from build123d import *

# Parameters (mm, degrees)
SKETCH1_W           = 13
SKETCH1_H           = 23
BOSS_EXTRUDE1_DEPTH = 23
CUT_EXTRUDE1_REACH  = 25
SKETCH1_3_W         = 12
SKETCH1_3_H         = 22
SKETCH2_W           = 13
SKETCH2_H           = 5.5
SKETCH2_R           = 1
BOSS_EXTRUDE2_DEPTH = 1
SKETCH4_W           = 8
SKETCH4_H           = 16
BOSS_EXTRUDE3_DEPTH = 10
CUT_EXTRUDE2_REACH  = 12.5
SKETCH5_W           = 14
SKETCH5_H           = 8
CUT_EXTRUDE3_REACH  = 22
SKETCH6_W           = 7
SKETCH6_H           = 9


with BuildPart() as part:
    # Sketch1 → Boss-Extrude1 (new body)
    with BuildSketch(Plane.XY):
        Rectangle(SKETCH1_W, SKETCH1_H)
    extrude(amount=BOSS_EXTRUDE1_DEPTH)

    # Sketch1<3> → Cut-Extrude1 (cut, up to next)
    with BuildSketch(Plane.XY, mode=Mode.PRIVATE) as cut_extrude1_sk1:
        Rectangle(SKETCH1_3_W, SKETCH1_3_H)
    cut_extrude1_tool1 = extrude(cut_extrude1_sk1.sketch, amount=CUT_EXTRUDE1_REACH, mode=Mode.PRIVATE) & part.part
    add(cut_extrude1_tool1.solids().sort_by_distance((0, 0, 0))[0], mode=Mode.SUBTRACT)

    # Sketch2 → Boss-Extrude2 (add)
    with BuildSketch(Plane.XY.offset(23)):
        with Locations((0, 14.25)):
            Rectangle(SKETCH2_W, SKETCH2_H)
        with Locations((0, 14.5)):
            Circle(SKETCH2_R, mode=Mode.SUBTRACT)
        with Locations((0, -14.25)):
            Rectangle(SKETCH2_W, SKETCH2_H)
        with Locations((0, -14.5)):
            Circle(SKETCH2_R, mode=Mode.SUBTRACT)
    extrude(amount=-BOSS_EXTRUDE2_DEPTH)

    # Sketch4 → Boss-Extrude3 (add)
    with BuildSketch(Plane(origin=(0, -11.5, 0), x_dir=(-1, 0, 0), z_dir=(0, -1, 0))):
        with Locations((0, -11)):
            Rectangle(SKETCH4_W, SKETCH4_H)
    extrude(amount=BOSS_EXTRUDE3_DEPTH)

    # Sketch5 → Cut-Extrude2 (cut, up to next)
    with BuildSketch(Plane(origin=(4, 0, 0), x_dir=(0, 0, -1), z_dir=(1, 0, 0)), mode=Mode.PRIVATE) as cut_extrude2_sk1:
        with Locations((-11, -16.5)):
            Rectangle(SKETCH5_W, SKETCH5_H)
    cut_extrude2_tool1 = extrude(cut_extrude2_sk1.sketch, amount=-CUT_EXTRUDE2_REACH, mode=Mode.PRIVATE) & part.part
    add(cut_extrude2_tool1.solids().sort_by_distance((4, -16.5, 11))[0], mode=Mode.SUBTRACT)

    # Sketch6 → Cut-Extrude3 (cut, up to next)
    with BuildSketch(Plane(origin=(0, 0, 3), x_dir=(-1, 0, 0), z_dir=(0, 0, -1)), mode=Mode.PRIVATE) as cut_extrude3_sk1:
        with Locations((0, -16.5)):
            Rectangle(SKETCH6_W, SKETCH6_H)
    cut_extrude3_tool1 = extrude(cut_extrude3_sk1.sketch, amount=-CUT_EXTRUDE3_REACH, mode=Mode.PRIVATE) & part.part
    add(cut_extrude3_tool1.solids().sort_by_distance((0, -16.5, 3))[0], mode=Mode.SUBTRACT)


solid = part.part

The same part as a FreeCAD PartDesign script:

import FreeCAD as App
import Part
import Sketcher
from FreeCAD import Vector
Q = App.Units.Quantity

doc = App.newDocument("Part")
body = doc.addObject("PartDesign::Body", "Body")

# Sketch on XY plane
sketch1 = body.newObject("Sketcher::SketchObject", "Sketch")
sketch1.AttachmentSupport = (doc.getObject("XY_Plane"), [""])
sketch1.MapMode = "FlatFace"
sketch1.addGeometry(Part.LineSegment(Vector(-6.5, 11.5, 0), Vector(-6.5, -11.5, 0)), False)
sketch1.addGeometry(Part.LineSegment(Vector(-6.5, -11.5, 0), Vector(6.5, -11.5, 0)), False)
sketch1.addGeometry(Part.LineSegment(Vector(6.5, -11.5, 0), Vector(6.5, 11.5, 0)), False)
sketch1.addGeometry(Part.LineSegment(Vector(6.5, 11.5, 0), Vector(-6.5, 11.5, 0)), False)
sketch1.addConstraint(Sketcher.Constraint("Coincident", 0, 2, 1, 1))
sketch1.addConstraint(Sketcher.Constraint("Coincident", 1, 2, 2, 1))
sketch1.addConstraint(Sketcher.Constraint("Coincident", 2, 2, 3, 1))
sketch1.addConstraint(Sketcher.Constraint("Coincident", 3, 2, 0, 1))
sketch1.addConstraint(Sketcher.Constraint("Vertical", 0))
sketch1.addConstraint(Sketcher.Constraint("Horizontal", 1))
sketch1.addConstraint(Sketcher.Constraint("Vertical", 2))
sketch1.addConstraint(Sketcher.Constraint("Horizontal", 3))
sketch1.addConstraint(Sketcher.Constraint("Symmetric", 0, 2, 2, 2, -1, 1))
sketch1.addConstraint(Sketcher.Constraint("DistanceX", 1, 1, 1, 2, Q("13 mm")))
sketch1.addConstraint(Sketcher.Constraint("DistanceY", 0, 2, 0, 1, Q("23 mm")))
pad1 = body.newObject("PartDesign::Pad", "Pad")
pad1.Profile = sketch1
pad1.Length = 23

# Sketch on XY plane
sketch2 = body.newObject("Sketcher::SketchObject", "Sketch001")
sketch2.AttachmentSupport = (doc.getObject("XY_Plane"), [""])
sketch2.MapMode = "FlatFace"
sketch2.addGeometry(Part.LineSegment(Vector(-6, 11, 0), Vector(-6, -11, 0)), False)
sketch2.addGeometry(Part.LineSegment(Vector(-6, -11, 0), Vector(6, -11, 0)), False)
sketch2.addGeometry(Part.LineSegment(Vector(6, -11, 0), Vector(6, 11, 0)), False)
sketch2.addGeometry(Part.LineSegment(Vector(6, 11, 0), Vector(-6, 11, 0)), False)
sketch2.addConstraint(Sketcher.Constraint("Coincident", 0, 2, 1, 1))
sketch2.addConstraint(Sketcher.Constraint("Coincident", 1, 2, 2, 1))
sketch2.addConstraint(Sketcher.Constraint("Coincident", 2, 2, 3, 1))
sketch2.addConstraint(Sketcher.Constraint("Coincident", 3, 2, 0, 1))
sketch2.addConstraint(Sketcher.Constraint("Vertical", 0))
sketch2.addConstraint(Sketcher.Constraint("Horizontal", 1))
sketch2.addConstraint(Sketcher.Constraint("Vertical", 2))
sketch2.addConstraint(Sketcher.Constraint("Horizontal", 3))
sketch2.addConstraint(Sketcher.Constraint("Symmetric", 0, 2, 2, 2, -1, 1))
sketch2.addConstraint(Sketcher.Constraint("DistanceX", 1, 1, 1, 2, Q("12 mm")))
sketch2.addConstraint(Sketcher.Constraint("DistanceY", 0, 2, 0, 1, Q("22 mm")))
pocket1 = body.newObject("PartDesign::Pocket", "Pocket")
pocket1.Profile = sketch2
pocket1.Type = "UpToFirst"
pocket1.Reversed = True

# Sketch on XY plane
sketch3 = body.newObject("Sketcher::SketchObject", "Sketch002")
sketch3.AttachmentSupport = (doc.getObject("XY_Plane"), [""])
sketch3.MapMode = "FlatFace"
sketch3.AttachmentOffset = App.Placement(Vector(0, 0, 23), App.Rotation())
sketch3.addGeometry(Part.LineSegment(Vector(-6.5, 17, 0), Vector(-6.5, 11.5, 0)), False)
sketch3.addGeometry(Part.LineSegment(Vector(-6.5, 11.5, 0), Vector(6.5, 11.5, 0)), False)
sketch3.addGeometry(Part.LineSegment(Vector(6.5, 11.5, 0), Vector(6.5, 17, 0)), False)
sketch3.addGeometry(Part.LineSegment(Vector(6.5, 17, 0), Vector(-6.5, 17, 0)), False)
sketch3.addGeometry(Part.Circle(Vector(0, 14.5, 0), Vector(0, 0, 1), 1), False)
sketch3.addGeometry(Part.LineSegment(Vector(-6.5, -11.5, 0), Vector(-6.5, -17, 0)), False)
sketch3.addGeometry(Part.LineSegment(Vector(-6.5, -17, 0), Vector(6.5, -17, 0)), False)
sketch3.addGeometry(Part.LineSegment(Vector(6.5, -17, 0), Vector(6.5, -11.5, 0)), False)
sketch3.addGeometry(Part.LineSegment(Vector(6.5, -11.5, 0), Vector(-6.5, -11.5, 0)), False)
sketch3.addGeometry(Part.Circle(Vector(0, -14.5, 0), Vector(0, 0, 1), 1), False)
sketch3.addConstraint(Sketcher.Constraint("Coincident", 0, 2, 1, 1))
sketch3.addConstraint(Sketcher.Constraint("Coincident", 1, 2, 2, 1))
sketch3.addConstraint(Sketcher.Constraint("Coincident", 2, 2, 3, 1))
sketch3.addConstraint(Sketcher.Constraint("Coincident", 3, 2, 0, 1))
sketch3.addConstraint(Sketcher.Constraint("Coincident", 5, 2, 6, 1))
sketch3.addConstraint(Sketcher.Constraint("Coincident", 6, 2, 7, 1))
sketch3.addConstraint(Sketcher.Constraint("Coincident", 7, 2, 8, 1))
sketch3.addConstraint(Sketcher.Constraint("Coincident", 8, 2, 5, 1))
sketch3.addConstraint(Sketcher.Constraint("Vertical", 0))
sketch3.addConstraint(Sketcher.Constraint("Horizontal", 1))
sketch3.addConstraint(Sketcher.Constraint("Vertical", 2))
sketch3.addConstraint(Sketcher.Constraint("Horizontal", 3))
sketch3.addConstraint(Sketcher.Constraint("Vertical", 5))
sketch3.addConstraint(Sketcher.Constraint("Horizontal", 6))
sketch3.addConstraint(Sketcher.Constraint("Vertical", 7))
sketch3.addConstraint(Sketcher.Constraint("Horizontal", 8))
sketch3.addConstraint(Sketcher.Constraint("Equal", 4, 9))
sketch3.addConstraint(Sketcher.Constraint("Symmetric", 4, 3, 9, 3, -1, 1))
sketch3.addConstraint(Sketcher.Constraint("Symmetric", 2, 2, 5, 2, -1, 1))
sketch3.addConstraint(Sketcher.Constraint("Symmetric", 0, 2, 7, 2, -1, 1))
sketch3.addConstraint(Sketcher.Constraint("PointOnObject", 4, 3, -2))
sketch3.addConstraint(Sketcher.Constraint("Vertical", 3, 2, 5, 2))
sketch3.addConstraint(Sketcher.Constraint("Diameter", 4, Q("2 mm")))
sketch3.addConstraint(Sketcher.Constraint("DistanceX", 1, 1, 1, 2, Q("13 mm")))
sketch3.addConstraint(Sketcher.Constraint("DistanceY", 0, 2, 0, 1, Q("5.5 mm")))
sketch3.addConstraint(Sketcher.Constraint("DistanceY", -1, 1, 2, 2, Q("17 mm")))
sketch3.addConstraint(Sketcher.Constraint("DistanceY", 9, 3, 4, 3, Q("29 mm")))
pad2 = body.newObject("PartDesign::Pad", "Pad001")
pad2.Profile = sketch3
pad2.Length = 1
pad2.Reversed = True

# Sketch on XZ plane
sketch4 = body.newObject("Sketcher::SketchObject", "Sketch003")
sketch4.AttachmentSupport = (doc.getObject("XZ_Plane"), [""])
sketch4.MapMode = "FlatFace"
sketch4.AttachmentOffset = App.Placement(Vector(0, 0, 11.5), App.Rotation())
sketch4.addGeometry(Part.LineSegment(Vector(4, 3, 0), Vector(4, 19, 0)), False)
sketch4.addGeometry(Part.LineSegment(Vector(4, 19, 0), Vector(-4, 19, 0)), False)
sketch4.addGeometry(Part.LineSegment(Vector(-4, 19, 0), Vector(-4, 3, 0)), False)
sketch4.addGeometry(Part.LineSegment(Vector(-4, 3, 0), Vector(4, 3, 0)), False)
sketch4.addConstraint(Sketcher.Constraint("Coincident", 0, 2, 1, 1))
sketch4.addConstraint(Sketcher.Constraint("Coincident", 1, 2, 2, 1))
sketch4.addConstraint(Sketcher.Constraint("Coincident", 2, 2, 3, 1))
sketch4.addConstraint(Sketcher.Constraint("Coincident", 3, 2, 0, 1))
sketch4.addConstraint(Sketcher.Constraint("Vertical", 0))
sketch4.addConstraint(Sketcher.Constraint("Horizontal", 1))
sketch4.addConstraint(Sketcher.Constraint("Vertical", 2))
sketch4.addConstraint(Sketcher.Constraint("Horizontal", 3))
sketch4.addConstraint(Sketcher.Constraint("DistanceX", 1, 2, 1, 1, Q("8 mm")))
sketch4.addConstraint(Sketcher.Constraint("DistanceY", 0, 1, 0, 2, Q("16 mm")))
sketch4.addConstraint(Sketcher.Constraint("DistanceX", -1, 1, 0, 2, Q("4 mm")))
sketch4.addConstraint(Sketcher.Constraint("DistanceY", -1, 1, 0, 2, Q("19 mm")))
pad3 = body.newObject("PartDesign::Pad", "Pad002")
pad3.Profile = sketch4
pad3.Length = 10

# Sketch on YZ plane
sketch5 = body.newObject("Sketcher::SketchObject", "Sketch004")
sketch5.AttachmentSupport = (doc.getObject("YZ_Plane"), [""])
sketch5.MapMode = "FlatFace"
sketch5.AttachmentOffset = App.Placement(Vector(0, 0, 4), App.Rotation())
sketch5.addGeometry(Part.LineSegment(Vector(-12.5, 18, 0), Vector(-20.5, 18, 0)), False)
sketch5.addGeometry(Part.LineSegment(Vector(-20.5, 18, 0), Vector(-20.5, 4, 0)), False)
sketch5.addGeometry(Part.LineSegment(Vector(-20.5, 4, 0), Vector(-12.5, 4, 0)), False)
sketch5.addGeometry(Part.LineSegment(Vector(-12.5, 4, 0), Vector(-12.5, 18, 0)), False)
sketch5.addConstraint(Sketcher.Constraint("Coincident", 0, 2, 1, 1))
sketch5.addConstraint(Sketcher.Constraint("Coincident", 1, 2, 2, 1))
sketch5.addConstraint(Sketcher.Constraint("Coincident", 2, 2, 3, 1))
sketch5.addConstraint(Sketcher.Constraint("Coincident", 3, 2, 0, 1))
sketch5.addConstraint(Sketcher.Constraint("Horizontal", 0))
sketch5.addConstraint(Sketcher.Constraint("Vertical", 1))
sketch5.addConstraint(Sketcher.Constraint("Horizontal", 2))
sketch5.addConstraint(Sketcher.Constraint("Vertical", 3))
sketch5.addConstraint(Sketcher.Constraint("DistanceX", 0, 2, 0, 1, Q("8 mm")))
sketch5.addConstraint(Sketcher.Constraint("DistanceY", 1, 2, 1, 1, Q("14 mm")))
sketch5.addConstraint(Sketcher.Constraint("DistanceY", -1, 1, 0, 2, Q("18 mm")))
sketch5.addConstraint(Sketcher.Constraint("DistanceX", 0, 2, -1, 1, Q("20.5 mm")))
pocket2 = body.newObject("PartDesign::Pocket", "Pocket001")
pocket2.Profile = sketch5
pocket2.Type = "UpToFirst"

# Sketch on XY plane
sketch6 = body.newObject("Sketcher::SketchObject", "Sketch005")
sketch6.AttachmentSupport = (doc.getObject("XY_Plane"), [""])
sketch6.MapMode = "FlatFace"
sketch6.AttachmentOffset = App.Placement(Vector(0, 0, 3), App.Rotation())
sketch6.addGeometry(Part.LineSegment(Vector(3.5, -12, 0), Vector(3.5, -21, 0)), False)
sketch6.addGeometry(Part.LineSegment(Vector(3.5, -21, 0), Vector(-3.5, -21, 0)), False)
sketch6.addGeometry(Part.LineSegment(Vector(-3.5, -21, 0), Vector(-3.5, -12, 0)), False)
sketch6.addGeometry(Part.LineSegment(Vector(-3.5, -12, 0), Vector(3.5, -12, 0)), False)
sketch6.addConstraint(Sketcher.Constraint("Coincident", 0, 2, 1, 1))
sketch6.addConstraint(Sketcher.Constraint("Coincident", 1, 2, 2, 1))
sketch6.addConstraint(Sketcher.Constraint("Coincident", 2, 2, 3, 1))
sketch6.addConstraint(Sketcher.Constraint("Coincident", 3, 2, 0, 1))
sketch6.addConstraint(Sketcher.Constraint("Vertical", 0))
sketch6.addConstraint(Sketcher.Constraint("Horizontal", 1))
sketch6.addConstraint(Sketcher.Constraint("Vertical", 2))
sketch6.addConstraint(Sketcher.Constraint("Horizontal", 3))
sketch6.addConstraint(Sketcher.Constraint("DistanceX", 1, 2, 1, 1, Q("7 mm")))
sketch6.addConstraint(Sketcher.Constraint("DistanceY", 0, 2, 0, 1, Q("9 mm")))
sketch6.addConstraint(Sketcher.Constraint("DistanceY", 0, 2, -1, 1, Q("21 mm")))
sketch6.addConstraint(Sketcher.Constraint("DistanceX", -1, 1, 0, 2, Q("3.5 mm")))
pocket3 = body.newObject("PartDesign::Pocket", "Pocket002")
pocket3.Profile = sketch6
pocket3.Length = 16
pocket3.Reversed = True

doc.recompute()
